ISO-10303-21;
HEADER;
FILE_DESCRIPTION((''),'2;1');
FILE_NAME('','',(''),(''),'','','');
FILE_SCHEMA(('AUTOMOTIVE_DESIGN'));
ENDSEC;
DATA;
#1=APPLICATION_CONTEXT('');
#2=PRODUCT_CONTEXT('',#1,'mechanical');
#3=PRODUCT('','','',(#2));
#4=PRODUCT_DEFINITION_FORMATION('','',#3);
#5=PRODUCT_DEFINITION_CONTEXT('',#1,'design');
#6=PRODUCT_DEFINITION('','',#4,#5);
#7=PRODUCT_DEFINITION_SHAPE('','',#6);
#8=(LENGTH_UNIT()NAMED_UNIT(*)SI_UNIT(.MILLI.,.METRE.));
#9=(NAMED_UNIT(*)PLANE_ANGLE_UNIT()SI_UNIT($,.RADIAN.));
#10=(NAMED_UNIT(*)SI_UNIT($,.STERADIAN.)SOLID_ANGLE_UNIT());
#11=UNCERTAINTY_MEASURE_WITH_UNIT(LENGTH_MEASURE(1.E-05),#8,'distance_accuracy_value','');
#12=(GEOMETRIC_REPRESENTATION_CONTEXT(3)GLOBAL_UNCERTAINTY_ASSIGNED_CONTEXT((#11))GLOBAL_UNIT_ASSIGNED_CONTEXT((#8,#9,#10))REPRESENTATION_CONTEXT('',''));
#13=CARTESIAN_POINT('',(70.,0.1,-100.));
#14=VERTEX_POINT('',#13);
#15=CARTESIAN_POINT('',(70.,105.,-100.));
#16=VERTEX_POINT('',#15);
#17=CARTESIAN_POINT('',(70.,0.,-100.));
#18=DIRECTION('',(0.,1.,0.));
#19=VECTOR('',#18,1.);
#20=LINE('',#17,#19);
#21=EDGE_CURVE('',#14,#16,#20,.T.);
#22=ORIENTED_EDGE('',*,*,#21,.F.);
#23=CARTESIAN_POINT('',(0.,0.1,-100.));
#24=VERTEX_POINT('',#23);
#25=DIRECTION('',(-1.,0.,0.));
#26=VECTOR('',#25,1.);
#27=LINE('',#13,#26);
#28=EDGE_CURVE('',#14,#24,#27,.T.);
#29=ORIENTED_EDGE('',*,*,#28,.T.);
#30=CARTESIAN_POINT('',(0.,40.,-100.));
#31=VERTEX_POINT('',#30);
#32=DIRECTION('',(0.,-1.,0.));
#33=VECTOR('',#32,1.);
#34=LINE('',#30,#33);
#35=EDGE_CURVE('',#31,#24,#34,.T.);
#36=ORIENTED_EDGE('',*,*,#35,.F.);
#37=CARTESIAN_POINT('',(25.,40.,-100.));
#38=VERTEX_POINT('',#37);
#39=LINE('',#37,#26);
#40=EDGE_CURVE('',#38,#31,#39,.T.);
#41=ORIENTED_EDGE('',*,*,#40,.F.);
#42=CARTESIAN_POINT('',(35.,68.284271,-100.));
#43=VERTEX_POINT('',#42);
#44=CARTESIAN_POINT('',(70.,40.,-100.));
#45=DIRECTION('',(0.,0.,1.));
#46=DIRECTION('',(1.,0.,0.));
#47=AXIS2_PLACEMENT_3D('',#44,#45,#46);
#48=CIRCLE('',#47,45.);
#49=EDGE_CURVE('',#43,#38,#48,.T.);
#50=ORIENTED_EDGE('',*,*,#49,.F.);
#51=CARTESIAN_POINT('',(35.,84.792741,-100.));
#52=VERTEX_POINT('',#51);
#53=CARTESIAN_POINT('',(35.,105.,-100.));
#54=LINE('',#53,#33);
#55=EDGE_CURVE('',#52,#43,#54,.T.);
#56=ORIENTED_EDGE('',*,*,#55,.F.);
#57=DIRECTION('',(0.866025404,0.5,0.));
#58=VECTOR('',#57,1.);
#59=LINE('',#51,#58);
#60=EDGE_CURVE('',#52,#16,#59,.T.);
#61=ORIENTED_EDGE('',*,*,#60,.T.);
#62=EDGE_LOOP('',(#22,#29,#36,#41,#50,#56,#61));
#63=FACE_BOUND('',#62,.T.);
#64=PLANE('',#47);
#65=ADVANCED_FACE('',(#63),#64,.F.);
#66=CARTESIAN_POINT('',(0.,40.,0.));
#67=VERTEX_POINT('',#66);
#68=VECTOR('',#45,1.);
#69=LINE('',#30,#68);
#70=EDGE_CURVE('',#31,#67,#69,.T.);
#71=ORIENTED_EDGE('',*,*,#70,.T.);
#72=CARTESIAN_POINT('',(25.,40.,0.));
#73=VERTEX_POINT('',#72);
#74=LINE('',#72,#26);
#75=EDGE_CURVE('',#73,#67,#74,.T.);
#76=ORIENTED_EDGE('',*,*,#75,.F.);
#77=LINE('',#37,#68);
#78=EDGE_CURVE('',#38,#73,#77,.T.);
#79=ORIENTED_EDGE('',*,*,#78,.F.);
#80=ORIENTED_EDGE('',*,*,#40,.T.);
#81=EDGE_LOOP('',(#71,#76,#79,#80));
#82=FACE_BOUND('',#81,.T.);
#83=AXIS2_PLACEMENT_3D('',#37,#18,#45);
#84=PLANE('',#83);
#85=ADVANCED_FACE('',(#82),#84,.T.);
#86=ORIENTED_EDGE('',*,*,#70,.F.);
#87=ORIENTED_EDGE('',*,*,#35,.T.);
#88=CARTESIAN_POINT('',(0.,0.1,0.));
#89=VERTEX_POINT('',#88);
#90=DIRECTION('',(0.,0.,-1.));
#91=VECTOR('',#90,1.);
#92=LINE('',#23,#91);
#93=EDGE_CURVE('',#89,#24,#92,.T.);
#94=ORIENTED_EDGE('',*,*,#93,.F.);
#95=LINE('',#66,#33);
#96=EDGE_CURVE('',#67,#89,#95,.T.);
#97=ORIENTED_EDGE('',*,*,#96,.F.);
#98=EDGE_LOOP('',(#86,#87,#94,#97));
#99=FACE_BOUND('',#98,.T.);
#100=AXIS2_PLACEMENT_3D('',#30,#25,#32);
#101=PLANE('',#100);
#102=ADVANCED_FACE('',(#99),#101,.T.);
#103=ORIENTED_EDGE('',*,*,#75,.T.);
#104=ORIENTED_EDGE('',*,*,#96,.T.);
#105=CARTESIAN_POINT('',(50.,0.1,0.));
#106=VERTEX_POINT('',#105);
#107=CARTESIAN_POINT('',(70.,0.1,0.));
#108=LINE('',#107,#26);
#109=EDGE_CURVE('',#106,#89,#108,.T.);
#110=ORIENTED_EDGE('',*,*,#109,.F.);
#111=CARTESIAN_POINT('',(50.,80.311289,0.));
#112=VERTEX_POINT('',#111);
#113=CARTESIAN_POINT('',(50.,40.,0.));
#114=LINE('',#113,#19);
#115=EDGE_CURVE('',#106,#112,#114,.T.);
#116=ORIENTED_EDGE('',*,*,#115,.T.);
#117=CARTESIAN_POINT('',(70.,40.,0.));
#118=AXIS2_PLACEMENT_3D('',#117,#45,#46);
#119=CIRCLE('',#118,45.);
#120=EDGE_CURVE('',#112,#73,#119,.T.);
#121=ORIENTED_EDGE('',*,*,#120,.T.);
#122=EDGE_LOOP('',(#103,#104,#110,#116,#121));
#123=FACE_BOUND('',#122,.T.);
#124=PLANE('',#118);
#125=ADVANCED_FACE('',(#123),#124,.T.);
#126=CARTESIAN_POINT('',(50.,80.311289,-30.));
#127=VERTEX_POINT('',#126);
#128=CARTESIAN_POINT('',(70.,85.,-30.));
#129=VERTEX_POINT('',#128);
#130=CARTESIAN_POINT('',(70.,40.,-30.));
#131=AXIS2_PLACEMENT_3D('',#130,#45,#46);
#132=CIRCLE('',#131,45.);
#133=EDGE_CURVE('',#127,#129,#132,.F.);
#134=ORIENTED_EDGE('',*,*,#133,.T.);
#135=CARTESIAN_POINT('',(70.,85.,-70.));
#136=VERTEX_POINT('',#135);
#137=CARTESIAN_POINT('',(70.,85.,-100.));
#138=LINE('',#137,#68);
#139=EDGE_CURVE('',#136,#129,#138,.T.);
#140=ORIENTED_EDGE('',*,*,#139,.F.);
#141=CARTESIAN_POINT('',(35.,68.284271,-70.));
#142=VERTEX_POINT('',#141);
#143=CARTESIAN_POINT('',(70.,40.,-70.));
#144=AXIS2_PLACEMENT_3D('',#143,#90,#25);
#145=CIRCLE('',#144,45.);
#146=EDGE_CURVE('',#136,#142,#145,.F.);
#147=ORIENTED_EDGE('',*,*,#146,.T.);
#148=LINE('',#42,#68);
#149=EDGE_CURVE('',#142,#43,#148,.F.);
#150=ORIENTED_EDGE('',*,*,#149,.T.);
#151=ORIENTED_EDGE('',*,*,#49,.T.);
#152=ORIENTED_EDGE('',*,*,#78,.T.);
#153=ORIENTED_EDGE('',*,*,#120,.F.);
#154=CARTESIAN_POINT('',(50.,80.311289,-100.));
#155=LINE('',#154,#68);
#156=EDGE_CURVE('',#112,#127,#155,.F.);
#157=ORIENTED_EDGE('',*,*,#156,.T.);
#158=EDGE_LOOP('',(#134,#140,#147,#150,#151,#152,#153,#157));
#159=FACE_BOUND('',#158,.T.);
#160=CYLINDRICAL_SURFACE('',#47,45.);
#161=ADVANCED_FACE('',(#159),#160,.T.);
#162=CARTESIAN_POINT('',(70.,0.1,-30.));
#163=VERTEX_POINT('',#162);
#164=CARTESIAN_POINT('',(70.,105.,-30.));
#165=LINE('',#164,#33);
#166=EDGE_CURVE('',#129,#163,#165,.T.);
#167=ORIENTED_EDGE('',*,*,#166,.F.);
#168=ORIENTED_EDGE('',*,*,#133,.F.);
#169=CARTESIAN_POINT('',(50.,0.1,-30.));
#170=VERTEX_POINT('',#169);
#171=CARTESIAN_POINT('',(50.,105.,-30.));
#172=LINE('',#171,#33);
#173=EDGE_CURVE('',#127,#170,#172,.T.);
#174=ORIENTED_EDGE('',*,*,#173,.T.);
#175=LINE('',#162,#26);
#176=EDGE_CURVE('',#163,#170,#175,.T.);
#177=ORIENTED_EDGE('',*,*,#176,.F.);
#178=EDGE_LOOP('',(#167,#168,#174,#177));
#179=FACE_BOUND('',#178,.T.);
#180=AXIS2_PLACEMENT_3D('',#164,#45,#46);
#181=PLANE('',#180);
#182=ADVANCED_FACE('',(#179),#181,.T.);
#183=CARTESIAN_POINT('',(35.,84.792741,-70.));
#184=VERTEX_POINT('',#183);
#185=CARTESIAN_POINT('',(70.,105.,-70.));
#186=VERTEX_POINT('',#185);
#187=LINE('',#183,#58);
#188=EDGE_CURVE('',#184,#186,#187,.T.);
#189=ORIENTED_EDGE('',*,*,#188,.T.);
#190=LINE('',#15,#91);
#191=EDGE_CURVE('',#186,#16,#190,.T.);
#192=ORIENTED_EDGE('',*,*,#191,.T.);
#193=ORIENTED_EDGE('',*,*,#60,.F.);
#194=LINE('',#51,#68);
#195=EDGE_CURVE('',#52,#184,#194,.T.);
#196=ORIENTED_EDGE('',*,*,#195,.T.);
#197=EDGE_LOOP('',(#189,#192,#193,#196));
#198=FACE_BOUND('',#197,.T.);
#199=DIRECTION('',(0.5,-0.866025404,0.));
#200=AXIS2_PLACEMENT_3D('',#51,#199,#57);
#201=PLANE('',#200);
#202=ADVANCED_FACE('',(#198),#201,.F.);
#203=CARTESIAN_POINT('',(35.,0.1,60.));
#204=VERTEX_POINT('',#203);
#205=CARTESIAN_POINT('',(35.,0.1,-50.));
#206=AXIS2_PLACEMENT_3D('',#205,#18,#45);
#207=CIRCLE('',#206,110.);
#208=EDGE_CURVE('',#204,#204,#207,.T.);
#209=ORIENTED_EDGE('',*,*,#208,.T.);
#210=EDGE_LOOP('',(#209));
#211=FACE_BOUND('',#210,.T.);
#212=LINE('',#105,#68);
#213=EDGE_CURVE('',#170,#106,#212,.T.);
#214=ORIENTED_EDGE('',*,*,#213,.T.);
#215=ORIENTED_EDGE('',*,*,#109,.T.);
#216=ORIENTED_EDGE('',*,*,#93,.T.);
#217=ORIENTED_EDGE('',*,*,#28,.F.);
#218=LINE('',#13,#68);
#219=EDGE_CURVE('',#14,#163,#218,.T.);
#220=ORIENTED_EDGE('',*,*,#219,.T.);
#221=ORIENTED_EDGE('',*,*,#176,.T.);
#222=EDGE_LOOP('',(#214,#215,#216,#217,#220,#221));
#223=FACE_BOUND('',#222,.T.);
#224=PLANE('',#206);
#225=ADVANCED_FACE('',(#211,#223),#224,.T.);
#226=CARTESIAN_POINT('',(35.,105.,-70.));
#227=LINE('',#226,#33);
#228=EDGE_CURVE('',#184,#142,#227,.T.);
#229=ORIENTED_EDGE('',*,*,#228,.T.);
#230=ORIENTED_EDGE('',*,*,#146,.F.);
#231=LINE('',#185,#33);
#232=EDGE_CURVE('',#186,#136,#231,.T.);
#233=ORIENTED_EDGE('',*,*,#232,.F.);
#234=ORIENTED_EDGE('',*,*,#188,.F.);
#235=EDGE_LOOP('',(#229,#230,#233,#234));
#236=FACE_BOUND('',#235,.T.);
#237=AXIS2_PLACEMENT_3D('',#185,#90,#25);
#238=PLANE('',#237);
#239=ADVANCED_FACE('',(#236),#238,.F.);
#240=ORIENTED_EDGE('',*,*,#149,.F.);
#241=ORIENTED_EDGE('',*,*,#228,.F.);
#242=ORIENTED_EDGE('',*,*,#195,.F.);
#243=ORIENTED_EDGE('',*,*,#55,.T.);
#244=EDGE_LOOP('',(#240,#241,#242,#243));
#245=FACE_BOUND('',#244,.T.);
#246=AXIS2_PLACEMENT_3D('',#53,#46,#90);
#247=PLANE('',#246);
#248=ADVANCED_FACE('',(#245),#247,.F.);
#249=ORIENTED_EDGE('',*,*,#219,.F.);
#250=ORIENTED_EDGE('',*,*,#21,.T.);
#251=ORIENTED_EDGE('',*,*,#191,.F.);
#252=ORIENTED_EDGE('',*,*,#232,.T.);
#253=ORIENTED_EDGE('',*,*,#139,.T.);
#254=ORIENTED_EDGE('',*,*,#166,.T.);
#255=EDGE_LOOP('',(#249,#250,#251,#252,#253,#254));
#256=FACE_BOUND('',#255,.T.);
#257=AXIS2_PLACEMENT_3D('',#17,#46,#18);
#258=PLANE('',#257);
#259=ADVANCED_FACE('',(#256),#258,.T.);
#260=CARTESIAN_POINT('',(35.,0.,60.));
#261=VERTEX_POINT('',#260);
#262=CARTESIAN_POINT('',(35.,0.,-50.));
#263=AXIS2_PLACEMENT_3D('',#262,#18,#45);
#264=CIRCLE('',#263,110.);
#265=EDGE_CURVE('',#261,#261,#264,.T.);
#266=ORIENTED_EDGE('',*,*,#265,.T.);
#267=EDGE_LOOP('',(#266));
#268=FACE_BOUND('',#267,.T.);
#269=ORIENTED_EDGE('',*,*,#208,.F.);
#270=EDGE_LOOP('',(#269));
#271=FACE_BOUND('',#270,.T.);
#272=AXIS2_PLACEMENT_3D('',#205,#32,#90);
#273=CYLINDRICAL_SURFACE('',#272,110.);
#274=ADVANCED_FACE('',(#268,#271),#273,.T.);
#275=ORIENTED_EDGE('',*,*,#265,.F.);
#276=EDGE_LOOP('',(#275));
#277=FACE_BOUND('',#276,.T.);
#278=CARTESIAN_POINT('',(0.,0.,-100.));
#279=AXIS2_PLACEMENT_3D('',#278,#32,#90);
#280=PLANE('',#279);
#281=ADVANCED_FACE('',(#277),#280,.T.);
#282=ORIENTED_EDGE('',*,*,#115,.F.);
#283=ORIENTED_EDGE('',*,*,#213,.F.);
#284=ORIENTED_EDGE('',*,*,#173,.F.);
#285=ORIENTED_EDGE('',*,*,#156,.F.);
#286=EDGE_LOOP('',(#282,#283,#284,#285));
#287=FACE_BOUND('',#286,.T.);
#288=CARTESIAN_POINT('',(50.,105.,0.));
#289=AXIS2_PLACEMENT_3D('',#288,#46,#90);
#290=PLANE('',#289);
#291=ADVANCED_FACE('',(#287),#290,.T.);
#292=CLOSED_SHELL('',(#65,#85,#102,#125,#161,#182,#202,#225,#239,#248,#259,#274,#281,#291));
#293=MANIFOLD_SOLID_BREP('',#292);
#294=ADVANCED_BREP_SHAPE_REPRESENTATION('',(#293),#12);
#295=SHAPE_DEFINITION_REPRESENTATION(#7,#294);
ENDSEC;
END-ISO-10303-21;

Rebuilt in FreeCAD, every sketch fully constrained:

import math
import FreeCAD as App
import Part
import Sketcher

V = App.Vector
Q = App.Units.Quantity

doc = App.newDocument("Part")
body = doc.addObject("PartDesign::Body", "Body")

sketch1 = body.newObject("Sketcher::SketchObject", "Sketch")
sketch1.AttachmentSupport = (doc.getObject("XY_Plane"), [""])
sketch1.MapMode = "FlatFace"
sketch1.addGeometry(Part.LineSegment(V(0, 0, 0), V(70, 0, 0)), False)
sketch1.addGeometry(Part.LineSegment(V(70, 0, 0), V(70, 85, 0)), False)
sketch1.addGeometry(Part.ArcOfCircle(Part.Circle(V(70, 40, 0), V(0, 0, 1), 45), math.radians(90), math.radians(180)), False)
sketch1.addGeometry(Part.LineSegment(V(25, 40, 0), V(0, 40, 0)), False)
sketch1.addGeometry(Part.LineSegment(V(0, 40, 0), V(0, 0, 0)), False)
sketch1.addConstraint(Sketcher.Constraint("Coincident", 0, 2, 1, 1))
sketch1.addConstraint(Sketcher.Constraint("Coincident", 1, 2, 2, 1))
sketch1.addConstraint(Sketcher.Constraint("Coincident", 2, 2, 3, 1))
sketch1.addConstraint(Sketcher.Constraint("Coincident", 3, 2, 4, 1))
sketch1.addConstraint(Sketcher.Constraint("Coincident", 4, 2, 0, 1))
sketch1.addConstraint(Sketcher.Constraint("Horizontal", 0))
sketch1.addConstraint(Sketcher.Constraint("Vertical", 1))
sketch1.addConstraint(Sketcher.Constraint("Horizontal", 3))
sketch1.addConstraint(Sketcher.Constraint("Vertical", 4))
sketch1.addConstraint(Sketcher.Constraint("Coincident", 4, 2, -1, 1))
sketch1.addConstraint(Sketcher.Constraint("Vertical", 2, 3, 0, 2))
sketch1.addConstraint(Sketcher.Constraint("Radius", 2, Q("45 mm")))
sketch1.addConstraint(Sketcher.Constraint("DistanceX", 0, 1, 0, 2, Q("70 mm")))
sketch1.addConstraint(Sketcher.Constraint("DistanceY", 1, 1, 1, 2, Q("85 mm")))
sketch1.addConstraint(Sketcher.Constraint("DistanceY", 4, 2, 4, 1, Q("40 mm")))
pad1 = body.newObject("PartDesign::Pad", "Pad")
pad1.Profile = sketch1
pad1.Length = 100
pad1.Reversed = True

sketch2 = body.newObject("Sketcher::SketchObject", "Sketch001")
sketch2.AttachmentSupport = (doc.getObject("XZ_Plane"), [""])
sketch2.MapMode = "FlatFace"
sketch2.addGeometry(Part.LineSegment(V(35, -100, 0), V(35, -70, 0)), False)
sketch2.addGeometry(Part.LineSegment(V(35, -70, 0), V(70, -70, 0)), False)
sketch2.addGeometry(Part.LineSegment(V(70, -70, 0), V(70, -100, 0)), False)
sketch2.addGeometry(Part.LineSegment(V(70, -100, 0), V(35, -100, 0)), False)
sketch2.addConstraint(Sketcher.Constraint("Coincident", 0, 2, 1, 1))
sketch2.addConstraint(Sketcher.Constraint("Coincident", 1, 2, 2, 1))
sketch2.addConstraint(Sketcher.Constraint("Coincident", 2, 2, 3, 1))
sketch2.addConstraint(Sketcher.Constraint("Coincident", 3, 2, 0, 1))
sketch2.addConstraint(Sketcher.Constraint("Vertical", 0))
sketch2.addConstraint(Sketcher.Constraint("Horizontal", 1))
sketch2.addConstraint(Sketcher.Constraint("Vertical", 2))
sketch2.addConstraint(Sketcher.Constraint("Horizontal", 3))
sketch2.addConstraint(Sketcher.Constraint("DistanceX", 1, 1, 1, 2, Q("35 mm")))
sketch2.addConstraint(Sketcher.Constraint("DistanceY", 0, 1, 0, 2, Q("30 mm")))
sketch2.addConstraint(Sketcher.Constraint("DistanceX", -1, 1, 0, 2, Q("35 mm")))
sketch2.addConstraint(Sketcher.Constraint("DistanceY", 0, 2, -1, 1, Q("70 mm")))
pad2 = body.newObject("PartDesign::Pad", "Pad001")
pad2.Profile = sketch2
pad2.Length = 105
pad2.Reversed = True

sketch3 = body.newObject("Sketcher::SketchObject", "Sketch002")
sketch3.AttachmentSupport = (doc.getObject("XZ_Plane"), [""])
sketch3.MapMode = "FlatFace"
sketch3.addGeometry(Part.LineSegment(V(50, -30, 0), V(50, 0, 0)), False)
sketch3.addGeometry(Part.LineSegment(V(50, 0, 0), V(70, 0, 0)), False)
sketch3.addGeometry(Part.LineSegment(V(70, 0, 0), V(70, -30, 0)), False)
sketch3.addGeometry(Part.LineSegment(V(70, -30, 0), V(50, -30, 0)), False)
sketch3.addConstraint(Sketcher.Constraint("Coincident", 0, 2, 1, 1))
sketch3.addConstraint(Sketcher.Constraint("Coincident", 1, 2, 2, 1))
sketch3.addConstraint(Sketcher.Constraint("Coincident", 2, 2, 3, 1))
sketch3.addConstraint(Sketcher.Constraint("Coincident", 3, 2, 0, 1))
sketch3.addConstraint(Sketcher.Constraint("Vertical", 0))
sketch3.addConstraint(Sketcher.Constraint("Horizontal", 1))
sketch3.addConstraint(Sketcher.Constraint("Vertical", 2))
sketch3.addConstraint(Sketcher.Constraint("Horizontal", 3))
sketch3.addConstraint(Sketcher.Constraint("PointOnObject", 0, 2, -1))
sketch3.addConstraint(Sketcher.Constraint("DistanceX", 1, 1, 1, 2, Q("20 mm")))
sketch3.addConstraint(Sketcher.Constraint("DistanceY", 0, 1, 0, 2, Q("30 mm")))
sketch3.addConstraint(Sketcher.Constraint("DistanceX", -1, 1, 0, 2, Q("50 mm")))
pocket1 = body.newObject("PartDesign::Pocket", "Pocket")
pocket1.Profile = sketch3
pocket1.Length = 105

sketch4 = body.newObject("Sketcher::SketchObject", "Sketch003")
sketch4.AttachmentSupport = (doc.getObject("XY_Plane"), [""])
sketch4.MapMode = "FlatFace"
sketch4.AttachmentOffset = App.Placement(V(0, 0, -70), App.Rotation())
sketch4.addGeometry(Part.LineSegment(V(70, 105, 0), V(35, 105, 0)), False)
sketch4.addGeometry(Part.LineSegment(V(35, 105, 0), V(35, 85, 0)), False)
sketch4.addGeometry(Part.LineSegment(V(35, 85, 0), V(70, 105, 0)), False)
sketch4.addConstraint(Sketcher.Constraint("Coincident", 0, 2, 1, 1))
sketch4.addConstraint(Sketcher.Constraint("Coincident", 1, 2, 2, 1))
sketch4.addConstraint(Sketcher.Constraint("Coincident", 2, 2, 0, 1))
sketch4.addConstraint(Sketcher.Constraint("Horizontal", 0))
sketch4.addConstraint(Sketcher.Constraint("Vertical", 1))
sketch4.addConstraint(Sketcher.Constraint("DistanceX", 0, 2, 0, 1, Q("35 mm")))
sketch4.addConstraint(Sketcher.Constraint("Angle", 2, Q("30 deg")))
sketch4.addConstraint(Sketcher.Constraint("DistanceX", -1, 1, 0, 2, Q("35 mm")))
sketch4.addConstraint(Sketcher.Constraint("DistanceY", -1, 1, 0, 2, Q("105 mm")))
pocket2 = body.newObject("PartDesign::Pocket", "Pocket001")
pocket2.Profile = sketch4
pocket2.Type = "ThroughAll"

sketch5 = body.newObject("Sketcher::SketchObject", "Sketch004")
sketch5.AttachmentSupport = (doc.getObject("XZ_Plane"), [""])
sketch5.MapMode = "FlatFace"
sketch5.addGeometry(Part.Circle(V(35, -50, 0), V(0, 0, 1), 110), False)
sketch5.addConstraint(Sketcher.Constraint("Diameter", 0, Q("220 mm")))
sketch5.addConstraint(Sketcher.Constraint("DistanceX", -1, 1, 0, 3, Q("35 mm")))
sketch5.addConstraint(Sketcher.Constraint("DistanceY", 0, 3, -1, 1, Q("50 mm")))
pad3 = body.newObject("PartDesign::Pad", "Pad002")
pad3.Profile = sketch5
pad3.Length = 0.1
pad3.Reversed = True

doc.recompute()
